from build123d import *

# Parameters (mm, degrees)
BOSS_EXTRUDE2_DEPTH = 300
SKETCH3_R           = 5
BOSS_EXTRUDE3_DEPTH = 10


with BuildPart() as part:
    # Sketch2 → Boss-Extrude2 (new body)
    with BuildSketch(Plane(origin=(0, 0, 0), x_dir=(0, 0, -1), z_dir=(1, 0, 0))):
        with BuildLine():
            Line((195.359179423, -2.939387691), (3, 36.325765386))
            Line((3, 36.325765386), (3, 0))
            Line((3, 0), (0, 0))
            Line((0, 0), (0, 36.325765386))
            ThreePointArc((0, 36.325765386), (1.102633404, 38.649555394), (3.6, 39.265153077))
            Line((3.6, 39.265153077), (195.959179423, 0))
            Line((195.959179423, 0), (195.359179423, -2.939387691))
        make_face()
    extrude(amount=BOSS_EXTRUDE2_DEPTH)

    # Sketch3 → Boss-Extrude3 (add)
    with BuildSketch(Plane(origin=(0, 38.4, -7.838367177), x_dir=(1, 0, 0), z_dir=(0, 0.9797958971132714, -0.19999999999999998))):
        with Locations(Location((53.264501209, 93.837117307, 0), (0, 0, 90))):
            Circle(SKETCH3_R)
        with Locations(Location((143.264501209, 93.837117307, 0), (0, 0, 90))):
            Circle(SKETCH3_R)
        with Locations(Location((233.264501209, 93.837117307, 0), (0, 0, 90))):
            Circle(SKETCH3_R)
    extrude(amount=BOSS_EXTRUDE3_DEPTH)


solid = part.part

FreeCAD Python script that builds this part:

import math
import FreeCAD as App
import Part
import Sketcher
from FreeCAD import Vector

doc = App.newDocument("Part")
body = doc.addObject("PartDesign::Body", "Body")

sketch1 = body.newObject("Sketcher::SketchObject", "Sketch")
sketch1.AttachmentSupport = (doc.getObject("YZ_Plane"), [""])
sketch1.MapMode = "FlatFace"
sketch1.addGeometry(Part.LineSegment(Vector(36.3, -3, 0), Vector(-2.9, -195.4, 0)), False)
sketch1.addGeometry(Part.LineSegment(Vector(-2.9, -195.4, 0), Vector(0, -196, 0)), False)
sketch1.addGeometry(Part.LineSegment(Vector(0, -196, 0), Vector(39.3, -3.6, 0)), False)
sketch1.addGeometry(Part.ArcOfCircle(Part.Circle(Vector(36.3, -3, 0), Vector(0, 0, 1), 3), math.radians(-12), math.radians(90)), False)
sketch1.addGeometry(Part.LineSegment(Vector(36.3, 0, 0), Vector(0, 0, 0)), False)
sketch1.addGeometry(Part.LineSegment(Vector(0, 0, 0), Vector(0, -3, 0)), False)
sketch1.addGeometry(Part.LineSegment(Vector(0, -3, 0), Vector(36.3, -3, 0)), False)
sketch1.addConstraint(Sketcher.Constraint("Coincident", 0, 2, 1, 1))
sketch1.addConstraint(Sketcher.Constraint("Coincident", 1, 2, 2, 1))
sketch1.addConstraint(Sketcher.Constraint("Tangent", 2, 2, 3, 1))
sketch1.addConstraint(Sketcher.Constraint("Tangent", 3, 2, 4, 1))
sketch1.addConstraint(Sketcher.Constraint("Coincident", 4, 2, 5, 1))
sketch1.addConstraint(Sketcher.Constraint("Coincident", 5, 2, 6, 1))
sketch1.addConstraint(Sketcher.Constraint("Coincident", 6, 2, 0, 1))
sketch1.addConstraint(Sketcher.Constraint("Horizontal", 4))
sketch1.addConstraint(Sketcher.Constraint("Vertical", 5))
sketch1.addConstraint(Sketcher.Constraint("Horizontal", 6))
sketch1.addConstraint(Sketcher.Constraint("Coincident", 4, 2, -1, 1))
sketch1.addConstraint(Sketcher.Constraint("Coincident", 6, 2, 3, 3))
sketch1.addConstraint(Sketcher.Constraint("PointOnObject", 1, 2, -2))
sketch1.addConstraint(Sketcher.Constraint("Perpendicular", 0, 1))
sketch1.addConstraint(Sketcher.Constraint("Perpendicular", 1, 2))
sketch1.addConstraint(Sketcher.Constraint("Radius", 3, 3.0))
sketch1.addConstraint(Sketcher.Constraint("DistanceY", 2, 2, -1, 1, 3.6))
sketch1.addConstraint(Sketcher.Constraint("DistanceX", 4, 2, 4, 1, 36.325765))
pad1 = body.newObject("PartDesign::Pad", "Pad")
pad1.Profile = sketch1
pad1.Length = 300

sketch2 = body.newObject("Sketcher::SketchObject", "Sketch001")
sketch2.Placement = App.Placement(Vector(0, 38.4, -7.838367), App.Rotation(Vector(1, 0, 0), Vector(0, -0.2, -0.979795897), Vector(0, 0.979795897, -0.2), "ZXY"))
sketch2.addGeometry(Part.Circle(Vector(53, 94, 0), Vector(0, 0, 1), 5), False)
sketch2.addGeometry(Part.Circle(Vector(143, 94, 0), Vector(0, 0, 1), 5), False)
sketch2.addGeometry(Part.Circle(Vector(233, 94, 0), Vector(0, 0, 1), 5), False)
sketch2.addConstraint(Sketcher.Constraint("Equal", 0, 1))
sketch2.addConstraint(Sketcher.Constraint("Equal", 1, 2))
sketch2.addConstraint(Sketcher.Constraint("Horizontal", 0, 3, 1, 3))
sketch2.addConstraint(Sketcher.Constraint("Horizontal", 1, 3, 2, 3))
sketch2.addConstraint(Sketcher.Constraint("Diameter", 0, 10.0))
sketch2.addConstraint(Sketcher.Constraint("DistanceX", 0, 3, 1, 3, 90.0))
sketch2.addConstraint(Sketcher.Constraint("DistanceX", 1, 3, 2, 3, 90.0))
sketch2.addConstraint(Sketcher.Constraint("DistanceX", -1, 1, 0, 3, 53.264501))
sketch2.addConstraint(Sketcher.Constraint("DistanceY", -1, 1, 0, 3, 93.837117))
pad2 = body.newObject("PartDesign::Pad", "Pad001")
pad2.Profile = sketch2
pad2.Length = 10

doc.recompute()
